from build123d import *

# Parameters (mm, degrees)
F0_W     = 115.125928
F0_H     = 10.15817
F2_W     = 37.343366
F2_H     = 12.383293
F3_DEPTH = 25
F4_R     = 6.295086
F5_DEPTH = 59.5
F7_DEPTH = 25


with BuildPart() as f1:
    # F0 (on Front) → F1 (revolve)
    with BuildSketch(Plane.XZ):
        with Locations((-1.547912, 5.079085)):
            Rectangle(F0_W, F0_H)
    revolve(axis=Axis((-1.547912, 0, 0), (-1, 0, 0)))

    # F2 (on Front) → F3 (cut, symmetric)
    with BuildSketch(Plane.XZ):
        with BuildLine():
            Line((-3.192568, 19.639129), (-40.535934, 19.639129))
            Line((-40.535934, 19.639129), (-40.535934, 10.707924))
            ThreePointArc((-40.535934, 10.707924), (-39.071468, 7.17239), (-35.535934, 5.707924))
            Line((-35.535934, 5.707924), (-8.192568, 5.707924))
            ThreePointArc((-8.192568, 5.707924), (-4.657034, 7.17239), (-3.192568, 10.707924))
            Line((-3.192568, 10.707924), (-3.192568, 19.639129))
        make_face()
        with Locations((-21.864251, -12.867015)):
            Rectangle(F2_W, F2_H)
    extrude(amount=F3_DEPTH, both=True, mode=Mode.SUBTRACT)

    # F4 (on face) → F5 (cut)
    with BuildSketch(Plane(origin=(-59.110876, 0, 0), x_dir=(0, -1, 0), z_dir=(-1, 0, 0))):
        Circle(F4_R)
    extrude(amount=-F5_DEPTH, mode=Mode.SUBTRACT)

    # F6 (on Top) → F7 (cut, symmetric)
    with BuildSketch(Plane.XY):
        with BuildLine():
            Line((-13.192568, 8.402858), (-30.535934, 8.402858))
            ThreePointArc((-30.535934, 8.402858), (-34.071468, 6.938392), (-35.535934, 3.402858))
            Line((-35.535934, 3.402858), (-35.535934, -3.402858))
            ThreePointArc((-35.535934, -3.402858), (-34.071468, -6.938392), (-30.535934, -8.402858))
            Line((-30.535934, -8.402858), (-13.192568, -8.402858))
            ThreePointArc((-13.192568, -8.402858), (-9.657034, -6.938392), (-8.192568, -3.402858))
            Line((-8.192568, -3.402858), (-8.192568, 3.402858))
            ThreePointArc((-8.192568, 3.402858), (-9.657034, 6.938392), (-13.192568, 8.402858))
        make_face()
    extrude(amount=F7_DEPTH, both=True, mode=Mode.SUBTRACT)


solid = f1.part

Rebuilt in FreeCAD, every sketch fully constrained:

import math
import FreeCAD as App
import Part
import Sketcher
from FreeCAD import Vector


def add_polygon(sketch, points):
    """Adds a closed chain of lines whose ends are joined by coincident constraints."""
    first, n = sketch.GeometryCount, len(points)
    for a, b in zip(points, points[1:] + points[:1]):
        sketch.addGeometry(Part.LineSegment(App.Vector(*a, 0), App.Vector(*b, 0)), False)
    for i in range(n):
        sketch.addConstraint(Sketcher.Constraint("Coincident", first + i, 2, first + (i + 1) % n, 1))

doc = App.newDocument("Part")
body = doc.addObject("PartDesign::Body", "Body")

sketch1 = body.newObject("Sketcher::SketchObject", "Sketch")
sketch1.AttachmentSupport = (doc.getObject("XZ_Plane"), [""])
sketch1.MapMode = "FlatFace"
add_polygon(sketch1, [(-59, 10), (-59, 0), (56, 0), (56, 10)])
sketch1.addConstraint([
    Sketcher.Constraint("Vertical", 0),
    Sketcher.Constraint("Horizontal", 1),
    Sketcher.Constraint("Vertical", 2),
    Sketcher.Constraint("Horizontal", 3),
    Sketcher.Constraint("PointOnObject", 0, 2, -1),
    Sketcher.Constraint("DistanceY", 0, 2, 0, 1, 10.15817),
    Sketcher.Constraint("DistanceX", 1, 1, 1, 2, 115.125928),
    Sketcher.Constraint("DistanceX", -1, 1, 1, 2, 56.015052),
])
revolution = body.newObject("PartDesign::Revolution", "Revolution")
revolution.Profile = sketch1
revolution.ReferenceAxis = (sketch1, ["H_Axis"])
revolution.Angle = 360

sketch2 = body.newObject("Sketcher::SketchObject", "Sketch001")
sketch2.AttachmentSupport = (doc.getObject("XZ_Plane"), [""])
sketch2.MapMode = "FlatFace"
sketch2.addGeometry(Part.LineSegment(Vector(-3.2, 19.6, 0), Vector(-40.5, 19.6, 0)), False)
sketch2.addGeometry(Part.LineSegment(Vector(-40.5, 19.6, 0), Vector(-40.5, 10.7, 0)), False)
sketch2.addGeometry(Part.ArcOfCircle(Part.Circle(Vector(-35.5, 10.7, 0), Vector(0, 0, 1), 5), math.radians(180), math.radians(270)), False)
sketch2.addGeometry(Part.LineSegment(Vector(-35.5, 5.7, 0), Vector(-8.2, 5.7, 0)), False)
sketch2.addGeometry(Part.ArcOfCircle(Part.Circle(Vector(-8.2, 10.7, 0), Vector(0, 0, 1), 5), math.radians(-90), math.radians(0)), False)
sketch2.addGeometry(Part.LineSegment(Vector(-3.2, 10.7, 0), Vector(-3.2, 19.6, 0)), False)
add_polygon(sketch2, [(-40.5, -6.7), (-40.5, -19.1), (-3.2, -19.1), (-3.2, -6.7)])
sketch2.addConstraint([
    Sketcher.Constraint("Coincident", 0, 2, 1, 1),
    Sketcher.Constraint("Tangent", 1, 2, 2, 1),
    Sketcher.Constraint("Tangent", 2, 2, 3, 1),
    Sketcher.Constraint("Tangent", 3, 2, 4, 1),
    Sketcher.Constraint("Tangent", 4, 2, 5, 1),
    Sketcher.Constraint("Coincident", 5, 2, 0, 1),
    Sketcher.Constraint("Horizontal", 0),
    Sketcher.Constraint("Vertical", 1),
    Sketcher.Constraint("Horizontal", 3),
    Sketcher.Constraint("Vertical", 5),
    Sketcher.Constraint("Vertical", 6),
    Sketcher.Constraint("Horizontal", 7),
    Sketcher.Constraint("Vertical", 8),
    Sketcher.Constraint("Horizontal", 9),
    Sketcher.Constraint("Equal", 2, 4),
    Sketcher.Constraint("Vertical", 1, 2, 6, 2),
    Sketcher.Constraint("Vertical", 5, 2, 7, 2),
    Sketcher.Constraint("Radius", 2, 5.0),
    Sketcher.Constraint("DistanceX", 0, 2, 0, 1, 37.343366),
    Sketcher.Constraint("DistanceY", 1, 2, 1, 1, 8.931205),
    Sketcher.Constraint("DistanceY", 6, 2, 6, 1, 12.383293),
    Sketcher.Constraint("DistanceY", -1, 1, 0, 2, 19.639129),
    Sketcher.Constraint("DistanceX", 4, 2, -1, 1, 3.192568),
    Sketcher.Constraint("DistanceY", 6, 2, -1, 1, 19.058661),
])
pocket1 = body.newObject("PartDesign::Pocket", "Pocket")
pocket1.Profile = sketch2
pocket1.Length = 50
pocket1.Midplane = True

sketch3 = body.newObject("Sketcher::SketchObject", "Sketch002")
sketch3.AttachmentSupport = (doc.getObject("YZ_Plane"), [""])
sketch3.MapMode = "FlatFace"
sketch3.AttachmentOffset = App.Placement(Vector(0, 0, -59.110876), App.Rotation())
sketch3.addGeometry(Part.Circle(Vector(0, 0, 0), Vector(0, 0, 1), 6), False)
sketch3.addConstraint([
    Sketcher.Constraint("Coincident", 0, 3, -1, 1),
    Sketcher.Constraint("Diameter", 0, 12.590172),
])
pocket2 = body.newObject("PartDesign::Pocket", "Pocket001")
pocket2.Profile = sketch3
pocket2.Length = 59.5
pocket2.Reversed = True

sketch4 = body.newObject("Sketcher::SketchObject", "Sketch003")
sketch4.AttachmentSupport = (doc.getObject("XY_Plane"), [""])
sketch4.MapMode = "FlatFace"
sketch4.addGeometry([
    Part.LineSegment(Vector(-13.2, 8.4, 0), Vector(-30.5, 8.4, 0)),
    Part.ArcOfCircle(Part.Circle(Vector(-30.5, 3.4, 0), Vector(0, 0, 1), 5), math.radians(90), math.radians(180)),
    Part.LineSegment(Vector(-35.5, 3.4, 0), Vector(-35.5, -3.4, 0)),
    Part.ArcOfCircle(Part.Circle(Vector(-30.5, -3.4, 0), Vector(0, 0, 1), 5), math.radians(180), math.radians(270)),
    Part.LineSegment(Vector(-30.5, -8.4, 0), Vector(-13.2, -8.4, 0)),
    Part.ArcOfCircle(Part.Circle(Vector(-13.2, -3.4, 0), Vector(0, 0, 1), 5), math.radians(-90), math.radians(0)),
    Part.LineSegment(Vector(-8.2, -3.4, 0), Vector(-8.2, 3.4, 0)),
    Part.ArcOfCircle(Part.Circle(Vector(-13.2, 3.4, 0), Vector(0, 0, 1), 5), math.radians(0), math.radians(90)),
], False)
sketch4.addConstraint([
    Sketcher.Constraint("Tangent", 0, 2, 1, 1),
    Sketcher.Constraint("Tangent", 1, 2, 2, 1),
    Sketcher.Constraint("Tangent", 2, 2, 3, 1),
    Sketcher.Constraint("Tangent", 3, 2, 4, 1),
    Sketcher.Constraint("Tangent", 4, 2, 5, 1),
    Sketcher.Constraint("Tangent", 5, 2, 6, 1),
    Sketcher.Constraint("Tangent", 6, 2, 7, 1),
    Sketcher.Constraint("Tangent", 7, 2, 0, 1),
    Sketcher.Constraint("Horizontal", 0),
    Sketcher.Constraint("Vertical", 2),
    Sketcher.Constraint("Horizontal", 4),
    Sketcher.Constraint("Vertical", 6),
    Sketcher.Constraint("Equal", 1, 3),
    Sketcher.Constraint("Equal", 3, 5),
    Sketcher.Constraint("Equal", 5, 7),
    Sketcher.Constraint("Radius", 1, 5.0),
    Sketcher.Constraint("DistanceX", 0, 2, 0, 1, 17.343366),
    Sketcher.Constraint("DistanceY", 2, 2, 2, 1, 6.805716),
    Sketcher.Constraint("DistanceY", -1, 1, 1, 3, 3.402858),
    Sketcher.Constraint("DistanceX", 5, 2, -1, 1, 8.192568),
])
pocket3 = body.newObject("PartDesign::Pocket", "Pocket002")
pocket3.Profile = sketch4
pocket3.Length = 50
pocket3.Midplane = True

doc.recompute()
